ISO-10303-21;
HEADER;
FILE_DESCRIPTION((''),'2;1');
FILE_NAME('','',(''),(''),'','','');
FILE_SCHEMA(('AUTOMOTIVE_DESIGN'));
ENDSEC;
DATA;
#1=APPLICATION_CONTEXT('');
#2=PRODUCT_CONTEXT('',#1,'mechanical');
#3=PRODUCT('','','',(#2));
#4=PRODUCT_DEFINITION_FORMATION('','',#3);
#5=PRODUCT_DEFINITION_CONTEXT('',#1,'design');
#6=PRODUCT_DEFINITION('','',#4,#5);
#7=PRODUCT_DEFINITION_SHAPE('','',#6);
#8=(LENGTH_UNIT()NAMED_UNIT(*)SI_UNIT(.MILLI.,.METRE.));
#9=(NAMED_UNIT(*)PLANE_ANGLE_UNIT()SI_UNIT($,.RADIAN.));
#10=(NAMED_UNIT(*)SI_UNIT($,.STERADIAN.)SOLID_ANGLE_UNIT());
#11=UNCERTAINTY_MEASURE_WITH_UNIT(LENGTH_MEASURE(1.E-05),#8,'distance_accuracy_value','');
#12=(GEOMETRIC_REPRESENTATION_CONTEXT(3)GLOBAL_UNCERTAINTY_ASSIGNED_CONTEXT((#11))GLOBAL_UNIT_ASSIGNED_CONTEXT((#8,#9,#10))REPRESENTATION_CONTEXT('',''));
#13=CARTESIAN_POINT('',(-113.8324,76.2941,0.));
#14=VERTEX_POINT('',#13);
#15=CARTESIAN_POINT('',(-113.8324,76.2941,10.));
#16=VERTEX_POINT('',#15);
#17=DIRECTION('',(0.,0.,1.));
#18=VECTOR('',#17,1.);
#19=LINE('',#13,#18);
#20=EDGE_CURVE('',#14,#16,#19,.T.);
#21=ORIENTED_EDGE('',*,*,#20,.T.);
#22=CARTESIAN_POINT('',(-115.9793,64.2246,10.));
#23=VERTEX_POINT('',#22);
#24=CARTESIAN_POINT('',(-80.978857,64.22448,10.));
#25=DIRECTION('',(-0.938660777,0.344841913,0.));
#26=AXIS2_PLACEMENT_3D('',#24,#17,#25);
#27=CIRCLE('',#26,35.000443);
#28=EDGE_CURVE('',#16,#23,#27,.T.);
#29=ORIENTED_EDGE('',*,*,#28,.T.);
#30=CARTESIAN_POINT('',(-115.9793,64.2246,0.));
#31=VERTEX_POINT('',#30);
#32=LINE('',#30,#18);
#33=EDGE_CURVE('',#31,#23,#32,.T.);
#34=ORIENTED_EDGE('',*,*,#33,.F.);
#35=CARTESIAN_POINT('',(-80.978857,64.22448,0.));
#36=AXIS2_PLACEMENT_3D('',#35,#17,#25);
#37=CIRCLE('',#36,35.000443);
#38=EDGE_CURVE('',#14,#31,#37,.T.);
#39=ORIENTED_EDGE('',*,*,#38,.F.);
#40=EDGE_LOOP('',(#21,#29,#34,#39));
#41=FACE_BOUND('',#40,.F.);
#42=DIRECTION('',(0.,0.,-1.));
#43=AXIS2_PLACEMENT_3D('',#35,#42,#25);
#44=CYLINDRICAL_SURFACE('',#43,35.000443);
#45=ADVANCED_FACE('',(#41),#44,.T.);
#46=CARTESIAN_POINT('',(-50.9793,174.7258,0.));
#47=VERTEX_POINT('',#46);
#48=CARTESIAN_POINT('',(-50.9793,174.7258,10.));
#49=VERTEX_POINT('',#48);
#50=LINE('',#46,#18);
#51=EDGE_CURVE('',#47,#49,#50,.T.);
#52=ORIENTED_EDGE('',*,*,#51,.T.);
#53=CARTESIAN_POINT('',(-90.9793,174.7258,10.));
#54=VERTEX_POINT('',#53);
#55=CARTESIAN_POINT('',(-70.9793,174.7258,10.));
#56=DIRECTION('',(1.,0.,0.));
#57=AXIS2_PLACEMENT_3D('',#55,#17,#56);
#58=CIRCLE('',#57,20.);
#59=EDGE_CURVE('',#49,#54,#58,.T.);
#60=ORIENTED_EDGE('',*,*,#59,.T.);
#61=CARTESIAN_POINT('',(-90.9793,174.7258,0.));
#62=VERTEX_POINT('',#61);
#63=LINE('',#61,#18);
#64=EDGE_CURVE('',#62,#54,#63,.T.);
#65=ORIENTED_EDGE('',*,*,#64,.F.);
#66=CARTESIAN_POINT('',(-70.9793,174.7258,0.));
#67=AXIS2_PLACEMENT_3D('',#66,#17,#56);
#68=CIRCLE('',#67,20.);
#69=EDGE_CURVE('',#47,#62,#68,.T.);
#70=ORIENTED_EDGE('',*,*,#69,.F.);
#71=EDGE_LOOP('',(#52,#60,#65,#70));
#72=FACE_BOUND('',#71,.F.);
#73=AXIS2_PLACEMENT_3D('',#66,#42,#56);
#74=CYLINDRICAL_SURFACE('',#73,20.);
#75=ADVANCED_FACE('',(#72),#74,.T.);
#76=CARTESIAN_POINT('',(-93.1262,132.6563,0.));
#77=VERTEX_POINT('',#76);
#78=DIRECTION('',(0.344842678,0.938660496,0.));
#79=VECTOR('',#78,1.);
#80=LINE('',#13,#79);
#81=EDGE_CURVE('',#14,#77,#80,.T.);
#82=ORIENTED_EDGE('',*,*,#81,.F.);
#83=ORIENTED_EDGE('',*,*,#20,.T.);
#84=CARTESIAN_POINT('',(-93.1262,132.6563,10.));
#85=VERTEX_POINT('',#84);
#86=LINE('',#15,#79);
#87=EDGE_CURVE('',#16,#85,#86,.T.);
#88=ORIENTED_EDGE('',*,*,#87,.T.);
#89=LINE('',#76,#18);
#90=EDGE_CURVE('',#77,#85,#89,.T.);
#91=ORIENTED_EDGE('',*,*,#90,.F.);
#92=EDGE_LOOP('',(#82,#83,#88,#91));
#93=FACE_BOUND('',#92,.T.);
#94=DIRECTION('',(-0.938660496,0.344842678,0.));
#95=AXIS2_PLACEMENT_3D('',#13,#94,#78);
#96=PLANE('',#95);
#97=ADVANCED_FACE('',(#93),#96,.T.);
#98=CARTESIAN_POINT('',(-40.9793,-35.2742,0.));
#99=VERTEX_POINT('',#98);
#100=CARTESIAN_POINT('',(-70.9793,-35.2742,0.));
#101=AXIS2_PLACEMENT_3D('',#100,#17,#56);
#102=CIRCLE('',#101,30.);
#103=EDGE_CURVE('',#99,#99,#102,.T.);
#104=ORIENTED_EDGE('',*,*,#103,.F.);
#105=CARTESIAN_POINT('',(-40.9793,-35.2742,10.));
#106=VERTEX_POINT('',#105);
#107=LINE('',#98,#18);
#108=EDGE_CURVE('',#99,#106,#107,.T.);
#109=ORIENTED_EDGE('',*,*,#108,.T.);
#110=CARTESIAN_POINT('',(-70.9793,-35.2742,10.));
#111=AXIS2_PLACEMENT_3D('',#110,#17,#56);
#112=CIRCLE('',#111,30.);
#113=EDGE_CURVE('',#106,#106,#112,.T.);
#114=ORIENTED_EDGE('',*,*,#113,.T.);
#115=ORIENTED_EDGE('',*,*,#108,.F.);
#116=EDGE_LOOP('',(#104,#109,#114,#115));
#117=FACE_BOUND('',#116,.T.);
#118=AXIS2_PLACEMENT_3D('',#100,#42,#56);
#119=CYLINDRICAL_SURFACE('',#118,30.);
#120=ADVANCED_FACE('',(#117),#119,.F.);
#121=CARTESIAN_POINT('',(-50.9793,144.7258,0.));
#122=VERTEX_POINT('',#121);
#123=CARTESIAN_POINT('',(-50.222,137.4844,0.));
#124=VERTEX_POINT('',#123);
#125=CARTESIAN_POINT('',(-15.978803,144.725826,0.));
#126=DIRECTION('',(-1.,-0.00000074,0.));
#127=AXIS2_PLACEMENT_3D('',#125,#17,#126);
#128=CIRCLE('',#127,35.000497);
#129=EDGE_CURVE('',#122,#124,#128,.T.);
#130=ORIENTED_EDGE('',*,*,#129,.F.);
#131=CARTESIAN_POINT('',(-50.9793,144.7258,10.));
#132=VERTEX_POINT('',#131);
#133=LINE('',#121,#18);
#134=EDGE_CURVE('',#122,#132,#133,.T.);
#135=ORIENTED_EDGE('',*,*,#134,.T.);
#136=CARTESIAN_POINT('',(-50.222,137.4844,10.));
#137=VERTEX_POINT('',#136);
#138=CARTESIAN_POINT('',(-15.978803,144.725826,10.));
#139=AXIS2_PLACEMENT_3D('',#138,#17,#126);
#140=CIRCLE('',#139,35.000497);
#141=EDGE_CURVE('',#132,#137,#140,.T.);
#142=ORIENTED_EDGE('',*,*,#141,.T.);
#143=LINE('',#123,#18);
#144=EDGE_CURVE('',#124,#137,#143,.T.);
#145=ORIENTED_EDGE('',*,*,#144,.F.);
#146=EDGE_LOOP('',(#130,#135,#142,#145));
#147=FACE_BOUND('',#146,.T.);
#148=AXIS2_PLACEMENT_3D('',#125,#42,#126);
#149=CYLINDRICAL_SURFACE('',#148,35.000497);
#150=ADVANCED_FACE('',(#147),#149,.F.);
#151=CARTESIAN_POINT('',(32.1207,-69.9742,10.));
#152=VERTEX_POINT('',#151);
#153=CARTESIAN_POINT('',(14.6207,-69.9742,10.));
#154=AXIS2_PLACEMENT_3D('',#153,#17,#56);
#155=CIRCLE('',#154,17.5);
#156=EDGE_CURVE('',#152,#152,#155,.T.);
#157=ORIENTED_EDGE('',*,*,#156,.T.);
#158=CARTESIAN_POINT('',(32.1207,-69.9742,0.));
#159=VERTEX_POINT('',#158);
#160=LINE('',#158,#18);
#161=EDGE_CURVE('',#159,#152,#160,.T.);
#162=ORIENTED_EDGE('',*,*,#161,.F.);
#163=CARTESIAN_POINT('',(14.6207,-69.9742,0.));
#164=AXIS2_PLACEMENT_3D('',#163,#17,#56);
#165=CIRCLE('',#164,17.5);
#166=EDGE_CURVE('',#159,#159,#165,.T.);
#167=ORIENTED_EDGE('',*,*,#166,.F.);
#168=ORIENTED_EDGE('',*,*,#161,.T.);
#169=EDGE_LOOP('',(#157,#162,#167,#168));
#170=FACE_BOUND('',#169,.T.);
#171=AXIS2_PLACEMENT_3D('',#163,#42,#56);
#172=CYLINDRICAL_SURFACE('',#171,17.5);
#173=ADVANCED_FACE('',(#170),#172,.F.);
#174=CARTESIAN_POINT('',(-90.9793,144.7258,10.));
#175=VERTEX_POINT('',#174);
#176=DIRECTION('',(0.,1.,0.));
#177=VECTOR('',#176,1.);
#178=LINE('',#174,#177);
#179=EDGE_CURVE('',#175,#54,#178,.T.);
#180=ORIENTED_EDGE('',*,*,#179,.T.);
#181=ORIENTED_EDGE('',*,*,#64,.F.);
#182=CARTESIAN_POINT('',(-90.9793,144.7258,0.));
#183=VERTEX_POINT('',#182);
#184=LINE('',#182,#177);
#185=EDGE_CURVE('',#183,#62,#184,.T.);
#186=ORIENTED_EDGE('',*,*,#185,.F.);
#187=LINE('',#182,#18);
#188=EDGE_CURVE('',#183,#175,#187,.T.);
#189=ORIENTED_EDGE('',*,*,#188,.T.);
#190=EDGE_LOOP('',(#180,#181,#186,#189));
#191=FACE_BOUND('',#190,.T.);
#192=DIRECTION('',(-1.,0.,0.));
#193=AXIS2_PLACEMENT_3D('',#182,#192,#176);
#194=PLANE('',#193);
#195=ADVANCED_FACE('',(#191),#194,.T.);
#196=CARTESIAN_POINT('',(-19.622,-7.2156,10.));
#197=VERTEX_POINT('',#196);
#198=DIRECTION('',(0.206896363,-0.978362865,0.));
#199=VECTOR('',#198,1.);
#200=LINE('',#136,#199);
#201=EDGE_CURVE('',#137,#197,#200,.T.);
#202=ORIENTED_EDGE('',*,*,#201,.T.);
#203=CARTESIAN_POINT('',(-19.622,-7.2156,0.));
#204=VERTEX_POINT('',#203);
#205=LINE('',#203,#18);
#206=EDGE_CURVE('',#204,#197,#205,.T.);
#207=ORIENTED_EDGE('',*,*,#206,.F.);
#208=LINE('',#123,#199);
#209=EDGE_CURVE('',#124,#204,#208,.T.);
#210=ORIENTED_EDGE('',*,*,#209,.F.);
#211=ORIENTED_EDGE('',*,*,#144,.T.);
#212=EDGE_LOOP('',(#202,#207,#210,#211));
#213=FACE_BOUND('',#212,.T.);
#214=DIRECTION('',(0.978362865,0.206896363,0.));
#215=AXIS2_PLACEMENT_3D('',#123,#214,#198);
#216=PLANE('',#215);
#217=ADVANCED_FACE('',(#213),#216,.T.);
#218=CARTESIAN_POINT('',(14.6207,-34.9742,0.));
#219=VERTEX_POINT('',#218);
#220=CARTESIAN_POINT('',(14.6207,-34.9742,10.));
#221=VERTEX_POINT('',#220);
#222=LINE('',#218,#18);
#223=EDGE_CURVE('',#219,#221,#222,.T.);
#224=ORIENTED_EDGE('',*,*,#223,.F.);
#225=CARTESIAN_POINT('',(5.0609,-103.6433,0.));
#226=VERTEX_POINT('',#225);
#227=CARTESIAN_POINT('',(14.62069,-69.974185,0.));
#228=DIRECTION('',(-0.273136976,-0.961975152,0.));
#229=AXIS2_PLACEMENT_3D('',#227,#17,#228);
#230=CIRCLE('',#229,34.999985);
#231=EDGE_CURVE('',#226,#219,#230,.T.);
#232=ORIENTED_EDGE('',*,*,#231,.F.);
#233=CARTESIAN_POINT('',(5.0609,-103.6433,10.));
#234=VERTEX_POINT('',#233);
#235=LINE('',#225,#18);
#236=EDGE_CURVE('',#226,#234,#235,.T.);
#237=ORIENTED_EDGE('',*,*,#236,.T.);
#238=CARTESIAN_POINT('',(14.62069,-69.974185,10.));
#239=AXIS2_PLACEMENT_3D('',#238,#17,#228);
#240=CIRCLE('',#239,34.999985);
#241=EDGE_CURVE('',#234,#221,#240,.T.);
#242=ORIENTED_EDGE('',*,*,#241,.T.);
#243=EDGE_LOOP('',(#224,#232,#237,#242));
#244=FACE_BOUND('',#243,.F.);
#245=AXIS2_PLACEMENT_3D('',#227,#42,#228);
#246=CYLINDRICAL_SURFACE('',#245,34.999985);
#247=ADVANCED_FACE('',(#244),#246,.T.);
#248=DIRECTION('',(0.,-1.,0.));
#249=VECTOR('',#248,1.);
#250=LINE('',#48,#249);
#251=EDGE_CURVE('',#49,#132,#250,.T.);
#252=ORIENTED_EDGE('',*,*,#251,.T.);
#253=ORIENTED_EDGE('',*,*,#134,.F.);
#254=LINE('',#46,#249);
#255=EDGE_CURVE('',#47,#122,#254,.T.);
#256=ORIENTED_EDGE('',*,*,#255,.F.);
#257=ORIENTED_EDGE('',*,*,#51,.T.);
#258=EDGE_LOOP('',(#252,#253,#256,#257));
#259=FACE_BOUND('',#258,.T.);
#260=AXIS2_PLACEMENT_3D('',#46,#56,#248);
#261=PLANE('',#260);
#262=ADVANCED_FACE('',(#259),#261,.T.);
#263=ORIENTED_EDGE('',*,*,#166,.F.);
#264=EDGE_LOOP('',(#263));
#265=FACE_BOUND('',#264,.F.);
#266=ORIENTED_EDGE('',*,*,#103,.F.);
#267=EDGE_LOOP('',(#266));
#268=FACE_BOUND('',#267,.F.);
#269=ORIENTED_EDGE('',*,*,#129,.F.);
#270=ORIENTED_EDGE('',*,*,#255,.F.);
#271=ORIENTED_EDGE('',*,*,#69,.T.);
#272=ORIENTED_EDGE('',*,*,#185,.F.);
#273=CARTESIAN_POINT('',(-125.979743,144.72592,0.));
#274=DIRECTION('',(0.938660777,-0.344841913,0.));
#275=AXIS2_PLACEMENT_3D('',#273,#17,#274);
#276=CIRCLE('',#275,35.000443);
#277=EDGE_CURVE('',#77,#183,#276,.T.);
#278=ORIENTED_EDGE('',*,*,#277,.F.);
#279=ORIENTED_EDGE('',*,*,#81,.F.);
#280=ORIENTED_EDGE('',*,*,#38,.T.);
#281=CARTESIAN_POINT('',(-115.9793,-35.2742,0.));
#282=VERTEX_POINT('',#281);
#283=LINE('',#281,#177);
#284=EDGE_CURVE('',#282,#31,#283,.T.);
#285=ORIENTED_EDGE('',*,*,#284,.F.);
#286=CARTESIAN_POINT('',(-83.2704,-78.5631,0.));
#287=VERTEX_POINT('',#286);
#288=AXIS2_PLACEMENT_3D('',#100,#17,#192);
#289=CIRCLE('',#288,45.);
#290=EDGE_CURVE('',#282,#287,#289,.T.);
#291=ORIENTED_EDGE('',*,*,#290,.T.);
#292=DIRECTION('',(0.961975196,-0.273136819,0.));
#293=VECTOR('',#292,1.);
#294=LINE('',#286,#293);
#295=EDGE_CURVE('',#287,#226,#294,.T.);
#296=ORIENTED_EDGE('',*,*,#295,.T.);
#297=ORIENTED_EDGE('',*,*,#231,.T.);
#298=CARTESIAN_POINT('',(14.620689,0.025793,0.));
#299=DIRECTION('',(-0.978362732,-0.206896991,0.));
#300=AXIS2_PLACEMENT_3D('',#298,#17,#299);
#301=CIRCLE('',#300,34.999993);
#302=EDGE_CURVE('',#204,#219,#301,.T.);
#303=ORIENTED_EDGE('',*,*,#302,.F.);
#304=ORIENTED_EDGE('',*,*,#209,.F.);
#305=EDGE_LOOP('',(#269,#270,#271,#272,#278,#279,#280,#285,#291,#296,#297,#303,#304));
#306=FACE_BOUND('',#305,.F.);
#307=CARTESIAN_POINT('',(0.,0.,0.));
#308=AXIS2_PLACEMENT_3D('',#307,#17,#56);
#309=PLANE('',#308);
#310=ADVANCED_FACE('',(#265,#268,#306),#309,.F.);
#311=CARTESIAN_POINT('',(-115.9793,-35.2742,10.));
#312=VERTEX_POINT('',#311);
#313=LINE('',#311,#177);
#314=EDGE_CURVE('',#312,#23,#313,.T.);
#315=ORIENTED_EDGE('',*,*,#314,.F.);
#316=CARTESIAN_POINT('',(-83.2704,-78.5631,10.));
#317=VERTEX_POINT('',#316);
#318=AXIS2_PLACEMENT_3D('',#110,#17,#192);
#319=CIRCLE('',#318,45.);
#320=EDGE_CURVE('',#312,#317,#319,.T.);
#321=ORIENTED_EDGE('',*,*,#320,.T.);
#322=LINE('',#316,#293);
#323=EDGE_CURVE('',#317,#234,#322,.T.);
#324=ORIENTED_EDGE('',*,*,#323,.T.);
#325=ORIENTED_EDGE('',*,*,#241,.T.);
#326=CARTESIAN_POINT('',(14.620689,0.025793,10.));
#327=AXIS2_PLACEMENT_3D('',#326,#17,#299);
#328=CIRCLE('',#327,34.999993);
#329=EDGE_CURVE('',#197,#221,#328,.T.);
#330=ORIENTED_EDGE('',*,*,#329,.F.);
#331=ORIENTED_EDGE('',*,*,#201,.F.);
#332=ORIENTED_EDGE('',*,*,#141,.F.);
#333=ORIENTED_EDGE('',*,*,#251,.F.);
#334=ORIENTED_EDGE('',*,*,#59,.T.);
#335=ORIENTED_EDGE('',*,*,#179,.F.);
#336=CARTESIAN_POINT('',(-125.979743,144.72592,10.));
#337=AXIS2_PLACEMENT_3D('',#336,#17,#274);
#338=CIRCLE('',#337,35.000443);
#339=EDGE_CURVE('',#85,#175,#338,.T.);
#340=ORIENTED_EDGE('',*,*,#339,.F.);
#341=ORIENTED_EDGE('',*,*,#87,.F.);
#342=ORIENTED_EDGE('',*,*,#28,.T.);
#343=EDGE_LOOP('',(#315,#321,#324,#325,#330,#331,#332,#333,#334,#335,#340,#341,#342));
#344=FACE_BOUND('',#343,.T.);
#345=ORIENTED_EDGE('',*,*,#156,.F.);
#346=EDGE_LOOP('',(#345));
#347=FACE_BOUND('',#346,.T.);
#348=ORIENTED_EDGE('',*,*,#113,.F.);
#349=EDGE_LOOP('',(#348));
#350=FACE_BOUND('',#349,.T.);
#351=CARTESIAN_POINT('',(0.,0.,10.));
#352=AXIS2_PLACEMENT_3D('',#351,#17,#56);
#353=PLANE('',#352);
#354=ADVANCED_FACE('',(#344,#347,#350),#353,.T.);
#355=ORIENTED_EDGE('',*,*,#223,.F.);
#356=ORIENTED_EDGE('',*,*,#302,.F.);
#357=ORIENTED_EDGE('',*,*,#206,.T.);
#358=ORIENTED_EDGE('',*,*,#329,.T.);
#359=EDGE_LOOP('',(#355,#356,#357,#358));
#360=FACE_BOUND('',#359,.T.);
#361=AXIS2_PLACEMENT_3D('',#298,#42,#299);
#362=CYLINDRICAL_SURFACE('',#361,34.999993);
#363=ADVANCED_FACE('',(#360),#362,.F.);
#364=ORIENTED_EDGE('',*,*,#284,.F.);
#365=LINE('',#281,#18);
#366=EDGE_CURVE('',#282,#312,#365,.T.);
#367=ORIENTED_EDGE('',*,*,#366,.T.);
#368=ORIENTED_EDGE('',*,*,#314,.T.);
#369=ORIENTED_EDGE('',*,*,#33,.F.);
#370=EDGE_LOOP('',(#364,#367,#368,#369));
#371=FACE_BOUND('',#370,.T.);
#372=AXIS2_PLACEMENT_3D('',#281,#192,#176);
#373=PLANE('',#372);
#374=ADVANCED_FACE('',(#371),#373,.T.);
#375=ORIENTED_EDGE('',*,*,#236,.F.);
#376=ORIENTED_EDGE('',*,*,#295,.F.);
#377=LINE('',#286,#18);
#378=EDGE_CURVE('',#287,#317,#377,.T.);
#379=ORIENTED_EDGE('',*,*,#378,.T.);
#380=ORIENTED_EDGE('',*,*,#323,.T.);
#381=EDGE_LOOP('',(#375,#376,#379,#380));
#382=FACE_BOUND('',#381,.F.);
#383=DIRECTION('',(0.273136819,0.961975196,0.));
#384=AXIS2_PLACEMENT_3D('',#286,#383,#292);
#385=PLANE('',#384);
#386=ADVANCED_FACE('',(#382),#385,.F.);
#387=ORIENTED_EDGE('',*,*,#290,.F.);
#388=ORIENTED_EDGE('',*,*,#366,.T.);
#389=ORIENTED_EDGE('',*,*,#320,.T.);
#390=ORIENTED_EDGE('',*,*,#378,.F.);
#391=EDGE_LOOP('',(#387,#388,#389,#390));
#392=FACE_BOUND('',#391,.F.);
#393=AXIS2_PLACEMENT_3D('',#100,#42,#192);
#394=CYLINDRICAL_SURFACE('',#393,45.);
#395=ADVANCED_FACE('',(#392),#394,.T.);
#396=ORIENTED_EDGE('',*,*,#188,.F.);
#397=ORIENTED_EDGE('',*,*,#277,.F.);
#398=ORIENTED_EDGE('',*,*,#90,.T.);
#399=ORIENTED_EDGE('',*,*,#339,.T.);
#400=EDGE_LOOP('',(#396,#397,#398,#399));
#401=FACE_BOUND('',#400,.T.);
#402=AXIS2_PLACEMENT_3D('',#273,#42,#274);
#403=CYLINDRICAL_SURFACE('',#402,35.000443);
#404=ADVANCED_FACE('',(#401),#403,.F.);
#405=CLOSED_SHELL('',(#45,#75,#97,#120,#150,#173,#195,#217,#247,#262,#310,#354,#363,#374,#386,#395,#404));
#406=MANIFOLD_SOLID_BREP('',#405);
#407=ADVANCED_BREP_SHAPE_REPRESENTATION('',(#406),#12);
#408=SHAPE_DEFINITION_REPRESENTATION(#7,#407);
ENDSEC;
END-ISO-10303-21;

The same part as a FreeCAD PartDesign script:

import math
import FreeCAD as App
import Part
import Sketcher
from FreeCAD import Vector

doc = App.newDocument("Part")
body = doc.addObject("PartDesign::Body", "Body")

# Sketch on XY plane
sketch1 = doc.addObject("Sketcher::SketchObject", "Sketch")
body.addObject(sketch1)
sketch1.AttachmentSupport = (doc.XY_Plane, [""])
sketch1.MapMode = "FlatFace"
sketch1.addGeometry(Part.LineSegment(Vector(-116, 64, 0), Vector(-116, -35, 0)), False)
sketch1.addGeometry(Part.ArcOfCircle(Part.Circle(Vector(-71, -35, 0), Vector(0, 0, 1), 45), math.radians(180), math.radians(254)), False)
sketch1.addGeometry(Part.LineSegment(Vector(-83, -79, 0), Vector(5, -104, 0)), False)
sketch1.addGeometry(Part.ArcOfCircle(Part.Circle(Vector(15, -70, 0), Vector(0, 0, 1), 35), math.radians(-106), math.radians(90)), False)
sketch1.addGeometry(Part.ArcOfCircle(Part.Circle(Vector(15, 0, 0), Vector(0, 0, 1), 35), math.radians(-168), math.radians(-90)), False)
sketch1.addGeometry(Part.LineSegment(Vector(-20, -7, 0), Vector(-50, 137, 0)), False)
sketch1.addGeometry(Part.ArcOfCircle(Part.Circle(Vector(-16, 145, 0), Vector(0, 0, 1), 35), math.radians(180), math.radians(191.94)), False)
sketch1.addGeometry(Part.LineSegment(Vector(-51, 145, 0), Vector(-51, 175, 0)), False)
sketch1.addGeometry(Part.ArcOfCircle(Part.Circle(Vector(-71, 175, 0), Vector(0, 0, 1), 20), math.radians(0), math.radians(180)), False)
sketch1.addGeometry(Part.LineSegment(Vector(-91, 175, 0), Vector(-91, 145, 0)), False)
sketch1.addGeometry(Part.ArcOfCircle(Part.Circle(Vector(-126, 145, 0), Vector(0, 0, 1), 35), math.radians(-20), math.radians(0)), False)
sketch1.addGeometry(Part.LineSegment(Vector(-93, 133, 0), Vector(-114, 76, 0)), False)
sketch1.addGeometry(Part.ArcOfCircle(Part.Circle(Vector(-81, 64, 0), Vector(0, 0, 1), 35), math.radians(160), math.radians(180)), False)
sketch1.addGeometry(Part.Circle(Vector(-71, -35, 0), Vector(0, 0, 1), 30), False)
sketch1.addGeometry(Part.Circle(Vector(15, -70, 0), Vector(0, 0, 1), 18), False)
sketch1.addConstraint(Sketcher.Constraint("Tangent", 0, 2, 1, 1))
sketch1.addConstraint(Sketcher.Constraint("Tangent", 1, 2, 2, 1))
sketch1.addConstraint(Sketcher.Constraint("Tangent", 2, 2, 3, 1))
sketch1.addConstraint(Sketcher.Constraint("Tangent", 3, 2, 4, 2))
sketch1.addConstraint(Sketcher.Constraint("Tangent", 4, 1, 5, 1))
sketch1.addConstraint(Sketcher.Constraint("Tangent", 5, 2, 6, 2))
sketch1.addConstraint(Sketcher.Constraint("Tangent", 6, 1, 7, 1))
sketch1.addConstraint(Sketcher.Constraint("Tangent", 7, 2, 8, 1))
sketch1.addConstraint(Sketcher.Constraint("Tangent", 8, 2, 9, 1))
sketch1.addConstraint(Sketcher.Constraint("Tangent", 9, 2, 10, 2))
sketch1.addConstraint(Sketcher.Constraint("Tangent", 10, 1, 11, 1))
sketch1.addConstraint(Sketcher.Constraint("Tangent", 11, 2, 12, 1))
sketch1.addConstraint(Sketcher.Constraint("Tangent", 12, 2, 0, 1))
sketch1.addConstraint(Sketcher.Constraint("Vertical", 0))
sketch1.addConstraint(Sketcher.Constraint("Vertical", 7))
sketch1.addConstraint(Sketcher.Constraint("Vertical", 9))
sketch1.addConstraint(Sketcher.Constraint("Coincident", 13, 3, 1, 3))
sketch1.addConstraint(Sketcher.Constraint("Coincident", 14, 3, 3, 3))
sketch1.addConstraint(Sketcher.Constraint("Equal", 3, 4))
sketch1.addConstraint(Sketcher.Constraint("Equal", 4, 6))
sketch1.addConstraint(Sketcher.Constraint("Equal", 6, 10))
sketch1.addConstraint(Sketcher.Constraint("Equal", 10, 12))
sketch1.addConstraint(Sketcher.Constraint("Horizontal", 6, 3, 10, 3))
sketch1.addConstraint(Sketcher.Constraint("Vertical", 3, 3, 4, 3))
sketch1.addConstraint(Sketcher.Constraint("Vertical", 1, 3, 8, 3))
sketch1.addConstraint(Sketcher.Constraint("Diameter", 13, 60.0))
sketch1.addConstraint(Sketcher.Constraint("Diameter", 14, 35.0))
sketch1.addConstraint(Sketcher.Constraint("Radius", 1, 45.0))
sketch1.addConstraint(Sketcher.Constraint("Radius", 3, 35.0))
sketch1.addConstraint(Sketcher.Constraint("Radius", 8, 20.0))
sketch1.addConstraint(Sketcher.Constraint("DistanceY", 1, 3, 6, 3, 180.0))
sketch1.addConstraint(Sketcher.Constraint("DistanceY", 1, 3, 8, 3, 210.0))
sketch1.addConstraint(Sketcher.Constraint("DistanceX", 1, 3, 3, 3, 85.6))
sketch1.addConstraint(Sketcher.Constraint("DistanceY", 3, 3, 1, 3, 34.7))
sketch1.addConstraint(Sketcher.Constraint("DistanceY", 0, 2, 0, 1, 99.4988))
sketch1.addConstraint(Sketcher.Constraint("DistanceY", 1, 2, -1, 1, 78.563))
sketch1.addConstraint(Sketcher.Constraint("DistanceX", -1, 1, 2, 2, 5.061))
pad1 = doc.addObject("PartDesign::Pad", "Pad")
body.addObject(pad1)
pad1.Profile = sketch1
pad1.Length = 10

doc.recompute()
